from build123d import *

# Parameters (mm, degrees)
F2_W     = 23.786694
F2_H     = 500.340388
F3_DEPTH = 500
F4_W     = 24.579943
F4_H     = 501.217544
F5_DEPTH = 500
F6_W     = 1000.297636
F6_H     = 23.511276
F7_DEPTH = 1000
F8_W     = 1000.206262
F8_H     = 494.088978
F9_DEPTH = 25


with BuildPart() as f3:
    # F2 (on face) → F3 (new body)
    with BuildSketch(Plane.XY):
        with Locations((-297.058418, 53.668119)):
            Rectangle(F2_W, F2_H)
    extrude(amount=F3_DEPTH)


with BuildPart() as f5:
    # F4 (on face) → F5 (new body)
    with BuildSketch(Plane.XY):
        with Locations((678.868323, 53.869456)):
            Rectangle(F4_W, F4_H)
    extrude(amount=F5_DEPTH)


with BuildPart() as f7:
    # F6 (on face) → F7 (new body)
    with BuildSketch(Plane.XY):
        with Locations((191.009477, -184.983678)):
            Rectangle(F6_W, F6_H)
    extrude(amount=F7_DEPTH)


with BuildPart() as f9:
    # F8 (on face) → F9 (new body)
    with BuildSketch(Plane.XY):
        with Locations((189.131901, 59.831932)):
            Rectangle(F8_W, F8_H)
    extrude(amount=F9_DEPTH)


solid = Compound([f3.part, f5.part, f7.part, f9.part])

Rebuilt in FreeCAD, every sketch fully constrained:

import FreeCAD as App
import Part
import Sketcher

V = App.Vector
Q = App.Units.Quantity

doc = App.newDocument("Part")
body = doc.addObject("PartDesign::Body", "Body")

# Sketch on XY plane
sketch1 = doc.addObject("Sketcher::SketchObject", "Sketch")
body.addObject(sketch1)
sketch1.AttachmentSupport = (doc.XY_Plane, [""])
sketch1.MapMode = "FlatFace"
sketch1.addGeometry([
    Part.LineSegment(V(-308.951765, 303.838313, 0), V(-308.951765, -196.502075, 0)),
    Part.LineSegment(V(-308.951765, -196.502075, 0), V(-285.165071, -196.502075, 0)),
    Part.LineSegment(V(-285.165071, -196.502075, 0), V(-285.165071, 303.838313, 0)),
    Part.LineSegment(V(-285.165071, 303.838313, 0), V(-308.951765, 303.838313, 0)),
], False)
sketch1.addConstraint([
    Sketcher.Constraint("Coincident", 0, 2, 1, 1),
    Sketcher.Constraint("Coincident", 1, 2, 2, 1),
    Sketcher.Constraint("Coincident", 2, 2, 3, 1),
    Sketcher.Constraint("Coincident", 3, 2, 0, 1),
    Sketcher.Constraint("Vertical", 0),
    Sketcher.Constraint("Horizontal", 1),
    Sketcher.Constraint("Vertical", 2),
    Sketcher.Constraint("Horizontal", 3),
    Sketcher.Constraint("DistanceY", 0, 2, 0, 1, Q("500.340388 mm")),
    Sketcher.Constraint("DistanceX", 1, 1, 1, 2, Q("23.786694 mm")),
    Sketcher.Constraint("DistanceX", 1, 2, -1, 1, Q("285.165071 mm")),
    Sketcher.Constraint("DistanceY", 0, 2, -1, 1, Q("196.502075 mm")),
])
pad1 = doc.addObject("PartDesign::Pad", "Pad")
body.addObject(pad1)
pad1.Profile = sketch1
pad1.Length = 500
body2 = doc.addObject("PartDesign::Body", "Body001")

# Sketch on XY plane
sketch2 = doc.addObject("Sketcher::SketchObject", "Sketch001")
body2.addObject(sketch2)
sketch2.AttachmentSupport = (doc.getObject("XY_Plane001"), [""])
sketch2.MapMode = "FlatFace"
sketch2.addGeometry([
    Part.LineSegment(V(666.578352, 304.478228, 0), V(666.578352, -196.739316, 0)),
    Part.LineSegment(V(666.578352, -196.739316, 0), V(691.158295, -196.739316, 0)),
    Part.LineSegment(V(691.158295, -196.739316, 0), V(691.158295, 304.478228, 0)),
    Part.LineSegment(V(691.158295, 304.478228, 0), V(666.578352, 304.478228, 0)),
], False)
sketch2.addConstraint([
    Sketcher.Constraint("Coincident", 0, 2, 1, 1),
    Sketcher.Constraint("Coincident", 1, 2, 2, 1),
    Sketcher.Constraint("Coincident", 2, 2, 3, 1),
    Sketcher.Constraint("Coincident", 3, 2, 0, 1),
    Sketcher.Constraint("Vertical", 0),
    Sketcher.Constraint("Horizontal", 1),
    Sketcher.Constraint("Vertical", 2),
    Sketcher.Constraint("Horizontal", 3),
    Sketcher.Constraint("DistanceX", 1, 1, 1, 2, Q("24.579943 mm")),
    Sketcher.Constraint("DistanceY", 0, 2, 0, 1, Q("501.217544 mm")),
    Sketcher.Constraint("DistanceX", -1, 1, 0, 2, Q("666.578352 mm")),
    Sketcher.Constraint("DistanceY", -1, 1, 2, 2, Q("304.478228 mm")),
])
pad2 = doc.addObject("PartDesign::Pad", "Pad001")
body2.addObject(pad2)
pad2.Profile = sketch2
pad2.Length = 500
body3 = doc.addObject("PartDesign::Body", "Body002")

# Sketch on XY plane
sketch3 = doc.addObject("Sketcher::SketchObject", "Sketch002")
body3.addObject(sketch3)
sketch3.AttachmentSupport = (doc.getObject("XY_Plane002"), [""])
sketch3.MapMode = "FlatFace"
sketch3.addGeometry([
    Part.LineSegment(V(-309.139341, -173.22804, 0), V(-309.139341, -196.739316, 0)),
    Part.LineSegment(V(-309.139341, -196.739316, 0), V(691.158295, -196.739316, 0)),
    Part.LineSegment(V(691.158295, -196.739316, 0), V(691.158295, -173.22804, 0)),
    Part.LineSegment(V(691.158295, -173.22804, 0), V(-309.139341, -173.22804, 0)),
], False)
sketch3.addConstraint([
    Sketcher.Constraint("Coincident", 0, 2, 1, 1),
    Sketcher.Constraint("Coincident", 1, 2, 2, 1),
    Sketcher.Constraint("Coincident", 2, 2, 3, 1),
    Sketcher.Constraint("Coincident", 3, 2, 0, 1),
    Sketcher.Constraint("Vertical", 0),
    Sketcher.Constraint("Horizontal", 1),
    Sketcher.Constraint("Vertical", 2),
    Sketcher.Constraint("Horizontal", 3),
    Sketcher.Constraint("DistanceX", 1, 1, 1, 2, Q("1000.297636 mm")),
    Sketcher.Constraint("DistanceY", 0, 2, 0, 1, Q("23.511276 mm")),
    Sketcher.Constraint("DistanceX", 0, 2, -1, 1, Q("309.139341 mm")),
    Sketcher.Constraint("DistanceY", 2, 2, -1, 1, Q("173.22804 mm")),
])
pad3 = doc.addObject("PartDesign::Pad", "Pad002")
body3.addObject(pad3)
pad3.Profile = sketch3
pad3.Length = 1000
body4 = doc.addObject("PartDesign::Body", "Body003")

# Sketch on XY plane
sketch4 = doc.addObject("Sketcher::SketchObject", "Sketch003")
body4.addObject(sketch4)
sketch4.AttachmentSupport = (doc.getObject("XY_Plane003"), [""])
sketch4.MapMode = "FlatFace"
sketch4.addGeometry([
    Part.LineSegment(V(-310.97123, 306.876421, 0), V(-310.97123, -187.212557, 0)),
    Part.LineSegment(V(-310.97123, -187.212557, 0), V(689.235032, -187.212557, 0)),
    Part.LineSegment(V(689.235032, -187.212557, 0), V(689.235032, 306.876421, 0)),
    Part.LineSegment(V(689.235032, 306.876421, 0), V(-310.97123, 306.876421, 0)),
], False)
sketch4.addConstraint([
    Sketcher.Constraint("Coincident", 0, 2, 1, 1),
    Sketcher.Constraint("Coincident", 1, 2, 2, 1),
    Sketcher.Constraint("Coincident", 2, 2, 3, 1),
    Sketcher.Constraint("Coincident", 3, 2, 0, 1),
    Sketcher.Constraint("Vertical", 0),
    Sketcher.Constraint("Horizontal", 1),
    Sketcher.Constraint("Vertical", 2),
    Sketcher.Constraint("Horizontal", 3),
    Sketcher.Constraint("DistanceX", 1, 1, 1, 2, Q("1000.206262 mm")),
    Sketcher.Constraint("DistanceY", 0, 2, 0, 1, Q("494.088978 mm")),
    Sketcher.Constraint("DistanceX", 0, 2, -1, 1, Q("310.97123 mm")),
    Sketcher.Constraint("DistanceY", -1, 1, 2, 2, Q("306.876421 mm")),
])
pad4 = doc.addObject("PartDesign::Pad", "Pad003")
body4.addObject(pad4)
pad4.Profile = sketch4
pad4.Length = 25

doc.recompute()
